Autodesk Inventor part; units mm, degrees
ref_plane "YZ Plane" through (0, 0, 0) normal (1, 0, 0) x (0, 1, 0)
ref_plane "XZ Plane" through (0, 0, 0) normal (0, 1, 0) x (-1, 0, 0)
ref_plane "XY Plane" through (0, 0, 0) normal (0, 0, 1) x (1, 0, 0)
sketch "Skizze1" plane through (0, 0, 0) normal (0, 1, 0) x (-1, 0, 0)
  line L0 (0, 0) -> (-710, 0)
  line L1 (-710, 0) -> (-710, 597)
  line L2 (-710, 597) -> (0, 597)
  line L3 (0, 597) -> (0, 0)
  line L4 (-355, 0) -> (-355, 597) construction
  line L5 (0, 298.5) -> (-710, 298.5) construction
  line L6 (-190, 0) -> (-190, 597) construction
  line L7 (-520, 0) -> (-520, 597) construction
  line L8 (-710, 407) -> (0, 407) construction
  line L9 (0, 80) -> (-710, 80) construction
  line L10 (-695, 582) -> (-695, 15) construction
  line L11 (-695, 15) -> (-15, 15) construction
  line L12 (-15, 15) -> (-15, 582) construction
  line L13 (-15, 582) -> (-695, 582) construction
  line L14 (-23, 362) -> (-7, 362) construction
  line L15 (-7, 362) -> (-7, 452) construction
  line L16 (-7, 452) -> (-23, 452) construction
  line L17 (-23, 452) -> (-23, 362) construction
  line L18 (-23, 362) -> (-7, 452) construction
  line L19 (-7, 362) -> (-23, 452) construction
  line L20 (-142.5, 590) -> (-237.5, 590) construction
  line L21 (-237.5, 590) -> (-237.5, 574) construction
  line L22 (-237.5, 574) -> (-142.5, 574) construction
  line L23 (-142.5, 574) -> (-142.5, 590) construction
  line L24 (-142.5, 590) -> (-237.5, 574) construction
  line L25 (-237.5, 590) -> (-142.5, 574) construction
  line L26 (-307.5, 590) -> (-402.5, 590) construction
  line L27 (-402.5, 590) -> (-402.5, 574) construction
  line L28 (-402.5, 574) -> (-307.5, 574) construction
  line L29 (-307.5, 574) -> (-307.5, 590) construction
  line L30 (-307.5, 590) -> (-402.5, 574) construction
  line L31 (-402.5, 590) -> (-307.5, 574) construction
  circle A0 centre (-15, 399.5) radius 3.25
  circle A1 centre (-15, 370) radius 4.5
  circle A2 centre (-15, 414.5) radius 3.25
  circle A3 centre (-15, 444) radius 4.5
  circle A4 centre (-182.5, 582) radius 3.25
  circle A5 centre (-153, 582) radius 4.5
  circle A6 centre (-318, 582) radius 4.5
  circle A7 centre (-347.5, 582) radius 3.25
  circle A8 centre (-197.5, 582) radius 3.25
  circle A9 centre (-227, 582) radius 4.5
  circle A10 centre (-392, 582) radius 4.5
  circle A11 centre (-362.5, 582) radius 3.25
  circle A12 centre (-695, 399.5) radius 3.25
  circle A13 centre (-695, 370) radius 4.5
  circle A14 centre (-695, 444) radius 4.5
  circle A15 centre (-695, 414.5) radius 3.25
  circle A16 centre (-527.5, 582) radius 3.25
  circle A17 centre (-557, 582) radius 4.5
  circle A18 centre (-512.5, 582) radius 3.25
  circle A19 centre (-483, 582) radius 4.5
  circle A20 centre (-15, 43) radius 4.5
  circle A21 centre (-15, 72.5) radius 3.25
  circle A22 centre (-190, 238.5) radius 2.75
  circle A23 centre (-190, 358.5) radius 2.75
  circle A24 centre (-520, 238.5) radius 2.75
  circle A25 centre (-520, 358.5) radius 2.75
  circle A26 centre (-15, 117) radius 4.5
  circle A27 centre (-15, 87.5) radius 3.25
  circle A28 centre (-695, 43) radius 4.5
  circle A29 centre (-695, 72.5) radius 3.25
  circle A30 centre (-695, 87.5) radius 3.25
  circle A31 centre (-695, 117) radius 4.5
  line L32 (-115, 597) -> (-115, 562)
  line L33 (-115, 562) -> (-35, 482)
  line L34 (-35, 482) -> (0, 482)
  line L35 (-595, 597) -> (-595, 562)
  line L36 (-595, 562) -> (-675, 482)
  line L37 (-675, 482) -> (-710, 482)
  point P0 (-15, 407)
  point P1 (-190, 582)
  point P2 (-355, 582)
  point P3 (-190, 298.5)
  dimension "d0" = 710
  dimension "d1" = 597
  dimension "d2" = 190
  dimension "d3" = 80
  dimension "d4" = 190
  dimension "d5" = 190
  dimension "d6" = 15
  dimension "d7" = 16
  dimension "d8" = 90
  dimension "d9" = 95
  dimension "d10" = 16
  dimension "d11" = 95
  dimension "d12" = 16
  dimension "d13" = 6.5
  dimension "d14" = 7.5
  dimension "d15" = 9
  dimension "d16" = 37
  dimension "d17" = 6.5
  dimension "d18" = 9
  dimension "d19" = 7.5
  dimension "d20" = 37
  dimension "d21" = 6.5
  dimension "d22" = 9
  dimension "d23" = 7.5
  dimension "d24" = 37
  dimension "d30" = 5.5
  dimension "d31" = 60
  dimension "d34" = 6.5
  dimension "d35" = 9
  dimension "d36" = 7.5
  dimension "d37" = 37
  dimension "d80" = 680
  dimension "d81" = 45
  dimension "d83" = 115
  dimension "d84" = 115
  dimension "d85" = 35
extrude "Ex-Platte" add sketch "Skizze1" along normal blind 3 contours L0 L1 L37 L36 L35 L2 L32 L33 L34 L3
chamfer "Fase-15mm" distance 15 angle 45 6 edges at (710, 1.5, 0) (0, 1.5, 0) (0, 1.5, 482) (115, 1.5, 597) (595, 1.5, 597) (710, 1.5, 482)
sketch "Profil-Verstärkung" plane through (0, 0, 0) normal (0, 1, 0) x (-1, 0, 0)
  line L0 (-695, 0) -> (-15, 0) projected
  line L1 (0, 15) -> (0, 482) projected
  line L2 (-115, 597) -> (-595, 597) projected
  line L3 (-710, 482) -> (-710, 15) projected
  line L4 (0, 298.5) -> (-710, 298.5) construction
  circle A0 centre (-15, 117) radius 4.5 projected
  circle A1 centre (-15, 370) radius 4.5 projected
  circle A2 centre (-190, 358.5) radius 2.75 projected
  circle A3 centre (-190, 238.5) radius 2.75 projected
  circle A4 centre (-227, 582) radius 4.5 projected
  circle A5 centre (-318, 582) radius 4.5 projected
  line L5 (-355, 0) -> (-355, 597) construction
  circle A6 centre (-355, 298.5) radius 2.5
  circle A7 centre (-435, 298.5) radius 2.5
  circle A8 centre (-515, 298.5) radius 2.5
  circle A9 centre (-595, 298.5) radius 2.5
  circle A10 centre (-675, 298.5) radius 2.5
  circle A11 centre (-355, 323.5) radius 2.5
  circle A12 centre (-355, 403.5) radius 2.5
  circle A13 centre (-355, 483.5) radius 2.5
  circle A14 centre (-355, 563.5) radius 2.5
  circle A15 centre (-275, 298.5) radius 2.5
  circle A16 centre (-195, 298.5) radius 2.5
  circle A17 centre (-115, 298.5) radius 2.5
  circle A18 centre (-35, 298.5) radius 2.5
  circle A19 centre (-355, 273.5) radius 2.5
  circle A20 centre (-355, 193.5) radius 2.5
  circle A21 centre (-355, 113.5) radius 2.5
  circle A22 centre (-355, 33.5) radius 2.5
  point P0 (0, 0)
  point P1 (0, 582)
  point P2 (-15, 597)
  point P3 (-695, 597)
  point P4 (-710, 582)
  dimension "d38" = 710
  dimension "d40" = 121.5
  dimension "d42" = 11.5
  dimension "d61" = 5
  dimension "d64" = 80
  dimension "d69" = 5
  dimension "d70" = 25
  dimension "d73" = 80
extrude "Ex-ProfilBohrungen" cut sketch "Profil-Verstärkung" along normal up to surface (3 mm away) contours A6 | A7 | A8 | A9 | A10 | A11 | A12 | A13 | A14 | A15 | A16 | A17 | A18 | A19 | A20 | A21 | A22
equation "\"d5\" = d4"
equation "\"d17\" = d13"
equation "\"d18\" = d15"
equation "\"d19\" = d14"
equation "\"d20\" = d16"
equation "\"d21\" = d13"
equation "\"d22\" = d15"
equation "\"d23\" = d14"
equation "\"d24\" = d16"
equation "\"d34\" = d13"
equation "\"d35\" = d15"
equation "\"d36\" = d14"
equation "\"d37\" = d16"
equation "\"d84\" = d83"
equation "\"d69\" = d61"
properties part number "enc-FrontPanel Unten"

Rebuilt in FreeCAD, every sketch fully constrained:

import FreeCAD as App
import Part
import Sketcher
from FreeCAD import Vector
Q = App.Units.Quantity


def edges_at(feature, points):
    """Names of the edges that pass closest to the given points."""
    edges = feature.Shape.Edges
    near = lambda p: min(range(len(edges)), key=lambda i: edges[i].distToShape(Part.Vertex(*p))[0])
    return sorted({f"Edge{near(p) + 1}" for p in points})


def add_polygon(sketch, points):
    """Adds a closed chain of lines whose ends are joined by coincident constraints."""
    first, n = sketch.GeometryCount, len(points)
    for a, b in zip(points, points[1:] + points[:1]):
        sketch.addGeometry(Part.LineSegment(App.Vector(*a, 0), App.Vector(*b, 0)), False)
    for i in range(n):
        sketch.addConstraint(Sketcher.Constraint("Coincident", first + i, 2, first + (i + 1) % n, 1))

doc = App.newDocument("Part")
body = doc.addObject("PartDesign::Body", "Body")

# Sketch on XZ plane
sketch1 = body.newObject("Sketcher::SketchObject", "Sketch")
sketch1.AttachmentSupport = (doc.getObject("XZ_Plane"), [""])
sketch1.MapMode = "FlatFace"
add_polygon(sketch1, [(710, 0), (0, 0), (0, 482), (35, 482), (115, 562), (115, 597), (595, 597), (595, 562), (675, 482), (710, 482)])  # lines 0-9
sketch1.addGeometry(Part.Circle(Vector(695, 43, 0), Vector(0, 0, 1), 4.5), False)  # 10
sketch1.addGeometry(Part.Circle(Vector(695, 72.5, 0), Vector(0, 0, 1), 3.2), False)  # 11
sketch1.addGeometry(Part.Circle(Vector(695, 87.5, 0), Vector(0, 0, 1), 3.2), False)  # 12
sketch1.addGeometry(Part.Circle(Vector(695, 117, 0), Vector(0, 0, 1), 4.5), False)  # 13
sketch1.addGeometry(Part.Circle(Vector(520, 238.5, 0), Vector(0, 0, 1), 2.8), False)  # 14
sketch1.addGeometry(Part.Circle(Vector(15, 43, 0), Vector(0, 0, 1), 4.5), False)  # 15
sketch1.addGeometry(Part.Circle(Vector(15, 72.5, 0), Vector(0, 0, 1), 3.2), False)  # 16
sketch1.addGeometry(Part.Circle(Vector(15, 87.5, 0), Vector(0, 0, 1), 3.2), False)  # 17
sketch1.addGeometry(Part.Circle(Vector(15, 117, 0), Vector(0, 0, 1), 4.5), False)  # 18
sketch1.addGeometry(Part.Circle(Vector(190, 238.5, 0), Vector(0, 0, 1), 2.8), False)  # 19
sketch1.addGeometry(Part.Circle(Vector(695, 370, 0), Vector(0, 0, 1), 4.5), False)  # 20
sketch1.addGeometry(Part.Circle(Vector(695, 399.5, 0), Vector(0, 0, 1), 3.2), False)  # 21
sketch1.addGeometry(Part.Circle(Vector(695, 414.5, 0), Vector(0, 0, 1), 3.2), False)  # 22
sketch1.addGeometry(Part.Circle(Vector(695, 444, 0), Vector(0, 0, 1), 4.5), False)  # 23
sketch1.addGeometry(Part.Circle(Vector(520, 358.5, 0), Vector(0, 0, 1), 2.8), False)  # 24
sketch1.addGeometry(Part.Circle(Vector(557, 582, 0), Vector(0, 0, 1), 4.5), False)  # 25
sketch1.addGeometry(Part.Circle(Vector(527.5, 582, 0), Vector(0, 0, 1), 3.2), False)  # 26
sketch1.addGeometry(Part.Circle(Vector(512.5, 582, 0), Vector(0, 0, 1), 3.2), False)  # 27
sketch1.addGeometry(Part.Circle(Vector(483, 582, 0), Vector(0, 0, 1), 4.5), False)  # 28
sketch1.addGeometry(Part.Circle(Vector(392, 582, 0), Vector(0, 0, 1), 4.5), False)  # 29
sketch1.addGeometry(Part.Circle(Vector(362.5, 582, 0), Vector(0, 0, 1), 3.2), False)  # 30
sketch1.addGeometry(Part.Circle(Vector(190, 358.5, 0), Vector(0, 0, 1), 2.8), False)  # 31
sketch1.addGeometry(Part.Circle(Vector(15, 370, 0), Vector(0, 0, 1), 4.5), False)  # 32
sketch1.addGeometry(Part.Circle(Vector(15, 399.5, 0), Vector(0, 0, 1), 3.2), False)  # 33
sketch1.addGeometry(Part.Circle(Vector(15, 414.5, 0), Vector(0, 0, 1), 3.2), False)  # 34
sketch1.addGeometry(Part.Circle(Vector(15, 444, 0), Vector(0, 0, 1), 4.5), False)  # 35
sketch1.addGeometry(Part.Circle(Vector(347.5, 582, 0), Vector(0, 0, 1), 3.2), False)  # 36
sketch1.addGeometry(Part.Circle(Vector(318, 582, 0), Vector(0, 0, 1), 4.5), False)  # 37
sketch1.addGeometry(Part.Circle(Vector(227, 582, 0), Vector(0, 0, 1), 4.5), False)  # 38
sketch1.addGeometry(Part.Circle(Vector(197.5, 582, 0), Vector(0, 0, 1), 3.2), False)  # 39
sketch1.addGeometry(Part.Circle(Vector(182.5, 582, 0), Vector(0, 0, 1), 3.2), False)  # 40
sketch1.addGeometry(Part.Circle(Vector(153, 582, 0), Vector(0, 0, 1), 4.5), False)  # 41
sketch1.addConstraint([
    Sketcher.Constraint("Horizontal", 0),
    Sketcher.Constraint("Vertical", 1),
    Sketcher.Constraint("Horizontal", 2),
    Sketcher.Constraint("Vertical", 4),
    Sketcher.Constraint("Horizontal", 5),
    Sketcher.Constraint("Vertical", 6),
    Sketcher.Constraint("Horizontal", 8),
    Sketcher.Constraint("Vertical", 9),
    Sketcher.Constraint("Coincident", 0, 2, -1, 1),
    Sketcher.Constraint("Equal", 11, 12),
    Sketcher.Constraint("Equal", 10, 13),
    Sketcher.Constraint("Equal", 13, 15),
    Sketcher.Constraint("Equal", 12, 16),
    Sketcher.Constraint("Equal", 16, 17),
    Sketcher.Constraint("Equal", 15, 18),
    Sketcher.Constraint("Equal", 14, 19),
    Sketcher.Constraint("Equal", 18, 20),
    Sketcher.Constraint("Equal", 17, 21),
    Sketcher.Constraint("Equal", 21, 22),
    Sketcher.Constraint("Equal", 20, 23),
    Sketcher.Constraint("Equal", 19, 24),
    Sketcher.Constraint("Equal", 23, 25),
    Sketcher.Constraint("Equal", 22, 26),
    Sketcher.Constraint("Equal", 26, 27),
    Sketcher.Constraint("Equal", 25, 28),
    Sketcher.Constraint("Equal", 28, 29),
    Sketcher.Constraint("Equal", 27, 30),
    Sketcher.Constraint("Equal", 24, 31),
    Sketcher.Constraint("Equal", 29, 32),
    Sketcher.Constraint("Equal", 30, 33),
    Sketcher.Constraint("Equal", 33, 34),
    Sketcher.Constraint("Equal", 32, 35),
    Sketcher.Constraint("Equal", 34, 36),
    Sketcher.Constraint("Equal", 35, 37),
    Sketcher.Constraint("Equal", 37, 38),
    Sketcher.Constraint("Equal", 36, 39),
    Sketcher.Constraint("Equal", 39, 40),
    Sketcher.Constraint("Equal", 38, 41),
    Sketcher.Constraint("Perpendicular", 3, 7),
    Sketcher.Constraint("Horizontal", 10, 3, 15, 3),
    Sketcher.Constraint("Horizontal", 11, 3, 16, 3),
    Sketcher.Constraint("Horizontal", 12, 3, 17, 3),
    Sketcher.Constraint("Horizontal", 13, 3, 18, 3),
    Sketcher.Constraint("Horizontal", 14, 3, 19, 3),
    Sketcher.Constraint("Horizontal", 25, 3, 26, 3),
    Sketcher.Constraint("Horizontal", 26, 3, 27, 3),
    Sketcher.Constraint("Horizontal", 27, 3, 28, 3),
    Sketcher.Constraint("Horizontal", 28, 3, 29, 3),
    Sketcher.Constraint("Horizontal", 29, 3, 30, 3),
    Sketcher.Constraint("Horizontal", 24, 3, 31, 3),
    Sketcher.Constraint("Horizontal", 20, 3, 32, 3),
    Sketcher.Constraint("Horizontal", 21, 3, 33, 3),
    Sketcher.Constraint("Horizontal", 22, 3, 34, 3),
    Sketcher.Constraint("Horizontal", 23, 3, 35, 3),
    Sketcher.Constraint("Horizontal", 30, 3, 36, 3),
    Sketcher.Constraint("Horizontal", 36, 3, 37, 3),
    Sketcher.Constraint("Horizontal", 37, 3, 38, 3),
    Sketcher.Constraint("Horizontal", 38, 3, 39, 3),
    Sketcher.Constraint("Horizontal", 39, 3, 40, 3),
    Sketcher.Constraint("Horizontal", 40, 3, 41, 3),
    Sketcher.Constraint("Horizontal", 3, 2, 6, 2),
    Sketcher.Constraint("Horizontal", 2, 2, 7, 2),
    Sketcher.Constraint("Vertical", 10, 3, 11, 3),
    Sketcher.Constraint("Vertical", 11, 3, 12, 3),
    Sketcher.Constraint("Vertical", 12, 3, 13, 3),
    Sketcher.Constraint("Vertical", 15, 3, 16, 3),
    Sketcher.Constraint("Vertical", 16, 3, 17, 3),
    Sketcher.Constraint("Vertical", 17, 3, 18, 3),
    Sketcher.Constraint("Vertical", 13, 3, 20, 3),
    Sketcher.Constraint("Vertical", 20, 3, 21, 3),
    Sketcher.Constraint("Vertical", 21, 3, 22, 3),
    Sketcher.Constraint("Vertical", 22, 3, 23, 3),
    Sketcher.Constraint("Vertical", 14, 3, 24, 3),
    Sketcher.Constraint("Vertical", 19, 3, 31, 3),
    Sketcher.Constraint("Vertical", 18, 3, 32, 3),
    Sketcher.Constraint("Vertical", 32, 3, 33, 3),
    Sketcher.Constraint("Vertical", 33, 3, 34, 3),
    Sketcher.Constraint("Vertical", 34, 3, 35, 3),
    Sketcher.Constraint("Equal", 2, 8),
    Sketcher.Constraint("Equal", 8, 4),
    Sketcher.Constraint("Equal", 3, 7),
    Sketcher.Constraint("Diameter", 10, Q("9 mm")),
    Sketcher.Constraint("Diameter", 11, Q("6.5 mm")),
    Sketcher.Constraint("Diameter", 14, Q("5.5 mm")),
    Sketcher.Constraint("DistanceX", 0, 2, 0, 1, Q("710 mm")),
    Sketcher.Constraint("DistanceX", 2, 1, 2, 2, Q("35 mm")),
    Sketcher.Constraint("DistanceX", -1, 1, 15, 3, Q("15 mm")),
    Sketcher.Constraint("DistanceX", -1, 1, 19, 3, Q("190 mm")),
    Sketcher.Constraint("DistanceX", -1, 1, 3, 2, Q("115 mm")),
    Sketcher.Constraint("DistanceY", -1, 1, 4, 2, Q("597 mm")),
    Sketcher.Constraint("DistanceY", 11, 3, 12, 3, Q("15 mm")),
    Sketcher.Constraint("DistanceX", 15, 3, 10, 3, Q("680 mm")),
    Sketcher.Constraint("DistanceY", 21, 3, 22, 3, Q("15 mm")),
    Sketcher.Constraint("DistanceX", 24, 3, 25, 3, Q("37 mm")),
    Sketcher.Constraint("DistanceX", 27, 3, 26, 3, Q("15 mm")),
    Sketcher.Constraint("DistanceX", 28, 3, 24, 3, Q("37 mm")),
    Sketcher.Constraint("DistanceX", 36, 3, 30, 3, Q("15 mm")),
    Sketcher.Constraint("DistanceX", 31, 3, 38, 3, Q("37 mm")),
    Sketcher.Constraint("DistanceX", 40, 3, 39, 3, Q("15 mm")),
    Sketcher.Constraint("DistanceY", 41, 3, 4, 2, Q("15 mm")),
    Sketcher.Constraint("DistanceX", 14, 3, 9, 2, Q("190 mm")),
    Sketcher.Constraint("DistanceX", 24, 3, 26, 3, Q("7.5 mm")),
    Sketcher.Constraint("DistanceY", -1, 1, 10, 3, Q("43 mm")),
    Sketcher.Constraint("DistanceY", -1, 1, 13, 3, Q("117 mm")),
    Sketcher.Constraint("DistanceY", -1, 1, 20, 3, Q("370 mm")),
    Sketcher.Constraint("DistanceY", -1, 1, 23, 3, Q("444 mm")),
    Sketcher.Constraint("DistanceX", -1, 1, 29, 3, Q("392 mm")),
    Sketcher.Constraint("DistanceX", -1, 1, 37, 3, Q("318 mm")),
    Sketcher.Constraint("DistanceX", -1, 1, 41, 3, Q("153 mm")),
    Sketcher.Constraint("DistanceY", 12, 3, 14, 3, Q("151 mm")),
    Sketcher.Constraint("DistanceY", 14, 3, 21, 3, Q("161 mm")),
    Sketcher.Constraint("DistanceY", 14, 3, 24, 3, Q("120 mm")),
    Sketcher.Constraint("DistanceX", 30, 3, 27, 3, Q("150 mm")),
    Sketcher.Constraint("DistanceX", 39, 3, 36, 3, Q("150 mm")),
    Sketcher.Constraint("DistanceY", -1, 1, 11, 3, Q("72.5 mm")),
])
pad1 = body.newObject("PartDesign::Pad", "Pad")
pad1.Profile = sketch1
pad1.Length = 3
pad1.Reversed = True
doc.recompute()

chamfer = body.newObject("PartDesign::Chamfer", "Chamfer")
chamfer.Base = (pad1, edges_at(pad1, [
    (710, 1.5, 0),
    (0, 1.5, 0),
    (0, 1.5, 482),
    (115, 1.5, 597),
    (595, 1.5, 597),
    (710, 1.5, 482),
]))
chamfer.Size = 15

# Sketch on XZ plane
sketch2 = body.newObject("Sketcher::SketchObject", "Sketch001")
sketch2.AttachmentSupport = (doc.getObject("XZ_Plane"), [""])
sketch2.MapMode = "FlatFace"
sketch2.addGeometry([
    Part.Circle(Vector(355, 298.5, 0), Vector(0, 0, 1), 2.5),  # 0
    Part.Circle(Vector(435, 298.5, 0), Vector(0, 0, 1), 2.5),  # 1
    Part.Circle(Vector(515, 298.5, 0), Vector(0, 0, 1), 2.5),  # 2
    Part.Circle(Vector(595, 298.5, 0), Vector(0, 0, 1), 2.5),  # 3
    Part.Circle(Vector(675, 298.5, 0), Vector(0, 0, 1), 2.5),  # 4
    Part.Circle(Vector(355, 323.5, 0), Vector(0, 0, 1), 2.5),  # 5
    Part.Circle(Vector(355, 403.5, 0), Vector(0, 0, 1), 2.5),  # 6
    Part.Circle(Vector(355, 483.5, 0), Vector(0, 0, 1), 2.5),  # 7
    Part.Circle(Vector(355, 563.5, 0), Vector(0, 0, 1), 2.5),  # 8
    Part.Circle(Vector(275, 298.5, 0), Vector(0, 0, 1), 2.5),  # 9
    Part.Circle(Vector(195, 298.5, 0), Vector(0, 0, 1), 2.5),  # 10
    Part.Circle(Vector(115, 298.5, 0), Vector(0, 0, 1), 2.5),  # 11
    Part.Circle(Vector(35, 298.5, 0), Vector(0, 0, 1), 2.5),  # 12
    Part.Circle(Vector(355, 273.5, 0), Vector(0, 0, 1), 2.5),  # 13
    Part.Circle(Vector(355, 193.5, 0), Vector(0, 0, 1), 2.5),  # 14
    Part.Circle(Vector(355, 113.5, 0), Vector(0, 0, 1), 2.5),  # 15
    Part.Circle(Vector(355, 33.5, 0), Vector(0, 0, 1), 2.5),  # 16
], False)
sketch2.addConstraint([
    Sketcher.Constraint("Equal", 0, 1),
    Sketcher.Constraint("Equal", 1, 2),
    Sketcher.Constraint("Equal", 2, 3),
    Sketcher.Constraint("Equal", 3, 4),
    Sketcher.Constraint("Equal", 4, 5),
    Sketcher.Constraint("Equal", 5, 6),
    Sketcher.Constraint("Equal", 6, 7),
    Sketcher.Constraint("Equal", 7, 8),
    Sketcher.Constraint("Equal", 8, 9),
    Sketcher.Constraint("Equal", 9, 10),
    Sketcher.Constraint("Equal", 10, 11),
    Sketcher.Constraint("Equal", 11, 12),
    Sketcher.Constraint("Equal", 12, 13),
    Sketcher.Constraint("Equal", 13, 14),
    Sketcher.Constraint("Equal", 14, 15),
    Sketcher.Constraint("Equal", 15, 16),
    Sketcher.Constraint("Horizontal", 0, 3, 1, 3),
    Sketcher.Constraint("Horizontal", 1, 3, 2, 3),
    Sketcher.Constraint("Horizontal", 2, 3, 3, 3),
    Sketcher.Constraint("Horizontal", 3, 3, 4, 3),
    Sketcher.Constraint("Horizontal", 4, 3, 9, 3),
    Sketcher.Constraint("Horizontal", 9, 3, 10, 3),
    Sketcher.Constraint("Horizontal", 10, 3, 11, 3),
    Sketcher.Constraint("Horizontal", 11, 3, 12, 3),
    Sketcher.Constraint("Vertical", 0, 3, 5, 3),
    Sketcher.Constraint("Vertical", 5, 3, 6, 3),
    Sketcher.Constraint("Vertical", 6, 3, 7, 3),
    Sketcher.Constraint("Vertical", 7, 3, 8, 3),
    Sketcher.Constraint("Vertical", 8, 3, 13, 3),
    Sketcher.Constraint("Vertical", 13, 3, 14, 3),
    Sketcher.Constraint("Vertical", 14, 3, 15, 3),
    Sketcher.Constraint("Vertical", 15, 3, 16, 3),
    Sketcher.Constraint("Diameter", 0, Q("5 mm")),
    Sketcher.Constraint("DistanceX", 0, 3, 1, 3, Q("80 mm")),
    Sketcher.Constraint("DistanceX", 1, 3, 2, 3, Q("80 mm")),
    Sketcher.Constraint("DistanceX", 2, 3, 3, 3, Q("80 mm")),
    Sketcher.Constraint("DistanceX", 3, 3, 4, 3, Q("80 mm")),
    Sketcher.Constraint("DistanceY", 0, 3, 5, 3, Q("25 mm")),
    Sketcher.Constraint("DistanceY", 5, 3, 6, 3, Q("80 mm")),
    Sketcher.Constraint("DistanceY", 6, 3, 7, 3, Q("80 mm")),
    Sketcher.Constraint("DistanceY", 7, 3, 8, 3, Q("80 mm")),
    Sketcher.Constraint("DistanceX", 9, 3, 0, 3, Q("80 mm")),
    Sketcher.Constraint("DistanceX", 10, 3, 9, 3, Q("80 mm")),
    Sketcher.Constraint("DistanceX", 11, 3, 10, 3, Q("80 mm")),
    Sketcher.Constraint("DistanceX", 12, 3, 11, 3, Q("80 mm")),
    Sketcher.Constraint("DistanceY", 13, 3, 0, 3, Q("25 mm")),
    Sketcher.Constraint("DistanceY", 14, 3, 13, 3, Q("80 mm")),
    Sketcher.Constraint("DistanceY", 15, 3, 14, 3, Q("80 mm")),
    Sketcher.Constraint("DistanceY", 16, 3, 15, 3, Q("80 mm")),
    Sketcher.Constraint("DistanceX", -1, 1, 0, 3, Q("355 mm")),
    Sketcher.Constraint("DistanceY", -1, 1, 0, 3, Q("298.5 mm")),
])
pocket1 = body.newObject("PartDesign::Pocket", "Pocket")
pocket1.Profile = sketch2
pocket1.Length = 3

doc.recompute()
